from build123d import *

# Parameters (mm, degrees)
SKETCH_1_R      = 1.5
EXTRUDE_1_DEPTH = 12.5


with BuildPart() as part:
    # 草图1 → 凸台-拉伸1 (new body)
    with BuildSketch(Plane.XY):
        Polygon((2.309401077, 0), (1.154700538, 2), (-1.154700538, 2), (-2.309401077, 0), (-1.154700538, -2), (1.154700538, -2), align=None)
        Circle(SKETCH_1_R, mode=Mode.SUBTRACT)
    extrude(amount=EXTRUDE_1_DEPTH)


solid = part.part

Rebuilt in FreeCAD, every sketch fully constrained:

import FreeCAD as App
import Part
import Sketcher
Q = App.Units.Quantity

doc = App.newDocument("Part")
params = doc.addObject("Spreadsheet::Sheet", "Params")
for row, (alias, value) in enumerate([
    ("sketch1_diameter", "3 mm"),
    ("pad1_length", "12.5 mm"),
], start=1):
    params.set(f"A{row}", alias)
    params.set(f"B{row}", "=" + value)
    params.setAlias(f"B{row}", alias)

body = doc.addObject("PartDesign::Body", "Body")

# Sketch on XY plane
sketch1 = body.newObject("Sketcher::SketchObject", "Sketch")
sketch1.AttachmentSupport = (doc.getObject("XY_Plane"), [""])
sketch1.MapMode = "FlatFace"
sketch1.addGeometry(Part.LineSegment(App.Vector(2.3, 0, 0), App.Vector(1.2, 2, 0)), False)
sketch1.addGeometry(Part.LineSegment(App.Vector(1.2, 2, 0), App.Vector(-1.2, 2, 0)), False)
sketch1.addGeometry(Part.LineSegment(App.Vector(-1.2, 2, 0), App.Vector(-2.3, 0, 0)), False)
sketch1.addGeometry(Part.LineSegment(App.Vector(-2.3, 0, 0), App.Vector(-1.2, -2, 0)), False)
sketch1.addGeometry(Part.LineSegment(App.Vector(-1.2, -2, 0), App.Vector(1.2, -2, 0)), False)
sketch1.addGeometry(Part.LineSegment(App.Vector(1.2, -2, 0), App.Vector(2.3, 0, 0)), False)
sketch1.addGeometry(Part.Circle(App.Vector(0, 0, 0), App.Vector(0, 0, 1), 1.5), False)
sketch1.addConstraint(Sketcher.Constraint("Coincident", 0, 2, 1, 1))
sketch1.addConstraint(Sketcher.Constraint("Coincident", 1, 2, 2, 1))
sketch1.addConstraint(Sketcher.Constraint("Coincident", 2, 2, 3, 1))
sketch1.addConstraint(Sketcher.Constraint("Coincident", 3, 2, 4, 1))
sketch1.addConstraint(Sketcher.Constraint("Coincident", 4, 2, 5, 1))
sketch1.addConstraint(Sketcher.Constraint("Coincident", 5, 2, 0, 1))
sketch1.addConstraint(Sketcher.Constraint("Horizontal", 1))
sketch1.addConstraint(Sketcher.Constraint("Horizontal", 4))
sketch1.addConstraint(Sketcher.Constraint("Coincident", 6, 3, -1, 1))
sketch1.addConstraint(Sketcher.Constraint("Symmetric", 0, 2, 3, 2, -1, 1))
sketch1.addConstraint(Sketcher.Constraint("Symmetric", 2, 2, 5, 2, -1, 1))
sketch1.addConstraint(Sketcher.Constraint("PointOnObject", 2, 2, -1))
sketch1.addConstraint(Sketcher.Constraint("Parallel", 2, 5))
sketch1.addConstraint(Sketcher.Constraint("Vertical", 1, 2, 3, 2))
sketch1.addConstraint(Sketcher.Constraint("Diameter", 6, Q("3 mm")))
sketch1.addConstraint(Sketcher.Constraint("Angle", 0, Q("120 deg")))
sketch1.addConstraint(Sketcher.Constraint("DistanceY", -1, 1, 0, 2, Q("2 mm")))
sketch1.addConstraint(Sketcher.Constraint("DistanceX", 1, 2, 1, 1, Q("2.309401 mm")))
sketch1.setExpression("Constraints[14]", "Params.sketch1_diameter")
pad1 = body.newObject("PartDesign::Pad", "Pad")
pad1.Profile = sketch1
pad1.setExpression("Length", "Params.pad1_length")

doc.recompute()
